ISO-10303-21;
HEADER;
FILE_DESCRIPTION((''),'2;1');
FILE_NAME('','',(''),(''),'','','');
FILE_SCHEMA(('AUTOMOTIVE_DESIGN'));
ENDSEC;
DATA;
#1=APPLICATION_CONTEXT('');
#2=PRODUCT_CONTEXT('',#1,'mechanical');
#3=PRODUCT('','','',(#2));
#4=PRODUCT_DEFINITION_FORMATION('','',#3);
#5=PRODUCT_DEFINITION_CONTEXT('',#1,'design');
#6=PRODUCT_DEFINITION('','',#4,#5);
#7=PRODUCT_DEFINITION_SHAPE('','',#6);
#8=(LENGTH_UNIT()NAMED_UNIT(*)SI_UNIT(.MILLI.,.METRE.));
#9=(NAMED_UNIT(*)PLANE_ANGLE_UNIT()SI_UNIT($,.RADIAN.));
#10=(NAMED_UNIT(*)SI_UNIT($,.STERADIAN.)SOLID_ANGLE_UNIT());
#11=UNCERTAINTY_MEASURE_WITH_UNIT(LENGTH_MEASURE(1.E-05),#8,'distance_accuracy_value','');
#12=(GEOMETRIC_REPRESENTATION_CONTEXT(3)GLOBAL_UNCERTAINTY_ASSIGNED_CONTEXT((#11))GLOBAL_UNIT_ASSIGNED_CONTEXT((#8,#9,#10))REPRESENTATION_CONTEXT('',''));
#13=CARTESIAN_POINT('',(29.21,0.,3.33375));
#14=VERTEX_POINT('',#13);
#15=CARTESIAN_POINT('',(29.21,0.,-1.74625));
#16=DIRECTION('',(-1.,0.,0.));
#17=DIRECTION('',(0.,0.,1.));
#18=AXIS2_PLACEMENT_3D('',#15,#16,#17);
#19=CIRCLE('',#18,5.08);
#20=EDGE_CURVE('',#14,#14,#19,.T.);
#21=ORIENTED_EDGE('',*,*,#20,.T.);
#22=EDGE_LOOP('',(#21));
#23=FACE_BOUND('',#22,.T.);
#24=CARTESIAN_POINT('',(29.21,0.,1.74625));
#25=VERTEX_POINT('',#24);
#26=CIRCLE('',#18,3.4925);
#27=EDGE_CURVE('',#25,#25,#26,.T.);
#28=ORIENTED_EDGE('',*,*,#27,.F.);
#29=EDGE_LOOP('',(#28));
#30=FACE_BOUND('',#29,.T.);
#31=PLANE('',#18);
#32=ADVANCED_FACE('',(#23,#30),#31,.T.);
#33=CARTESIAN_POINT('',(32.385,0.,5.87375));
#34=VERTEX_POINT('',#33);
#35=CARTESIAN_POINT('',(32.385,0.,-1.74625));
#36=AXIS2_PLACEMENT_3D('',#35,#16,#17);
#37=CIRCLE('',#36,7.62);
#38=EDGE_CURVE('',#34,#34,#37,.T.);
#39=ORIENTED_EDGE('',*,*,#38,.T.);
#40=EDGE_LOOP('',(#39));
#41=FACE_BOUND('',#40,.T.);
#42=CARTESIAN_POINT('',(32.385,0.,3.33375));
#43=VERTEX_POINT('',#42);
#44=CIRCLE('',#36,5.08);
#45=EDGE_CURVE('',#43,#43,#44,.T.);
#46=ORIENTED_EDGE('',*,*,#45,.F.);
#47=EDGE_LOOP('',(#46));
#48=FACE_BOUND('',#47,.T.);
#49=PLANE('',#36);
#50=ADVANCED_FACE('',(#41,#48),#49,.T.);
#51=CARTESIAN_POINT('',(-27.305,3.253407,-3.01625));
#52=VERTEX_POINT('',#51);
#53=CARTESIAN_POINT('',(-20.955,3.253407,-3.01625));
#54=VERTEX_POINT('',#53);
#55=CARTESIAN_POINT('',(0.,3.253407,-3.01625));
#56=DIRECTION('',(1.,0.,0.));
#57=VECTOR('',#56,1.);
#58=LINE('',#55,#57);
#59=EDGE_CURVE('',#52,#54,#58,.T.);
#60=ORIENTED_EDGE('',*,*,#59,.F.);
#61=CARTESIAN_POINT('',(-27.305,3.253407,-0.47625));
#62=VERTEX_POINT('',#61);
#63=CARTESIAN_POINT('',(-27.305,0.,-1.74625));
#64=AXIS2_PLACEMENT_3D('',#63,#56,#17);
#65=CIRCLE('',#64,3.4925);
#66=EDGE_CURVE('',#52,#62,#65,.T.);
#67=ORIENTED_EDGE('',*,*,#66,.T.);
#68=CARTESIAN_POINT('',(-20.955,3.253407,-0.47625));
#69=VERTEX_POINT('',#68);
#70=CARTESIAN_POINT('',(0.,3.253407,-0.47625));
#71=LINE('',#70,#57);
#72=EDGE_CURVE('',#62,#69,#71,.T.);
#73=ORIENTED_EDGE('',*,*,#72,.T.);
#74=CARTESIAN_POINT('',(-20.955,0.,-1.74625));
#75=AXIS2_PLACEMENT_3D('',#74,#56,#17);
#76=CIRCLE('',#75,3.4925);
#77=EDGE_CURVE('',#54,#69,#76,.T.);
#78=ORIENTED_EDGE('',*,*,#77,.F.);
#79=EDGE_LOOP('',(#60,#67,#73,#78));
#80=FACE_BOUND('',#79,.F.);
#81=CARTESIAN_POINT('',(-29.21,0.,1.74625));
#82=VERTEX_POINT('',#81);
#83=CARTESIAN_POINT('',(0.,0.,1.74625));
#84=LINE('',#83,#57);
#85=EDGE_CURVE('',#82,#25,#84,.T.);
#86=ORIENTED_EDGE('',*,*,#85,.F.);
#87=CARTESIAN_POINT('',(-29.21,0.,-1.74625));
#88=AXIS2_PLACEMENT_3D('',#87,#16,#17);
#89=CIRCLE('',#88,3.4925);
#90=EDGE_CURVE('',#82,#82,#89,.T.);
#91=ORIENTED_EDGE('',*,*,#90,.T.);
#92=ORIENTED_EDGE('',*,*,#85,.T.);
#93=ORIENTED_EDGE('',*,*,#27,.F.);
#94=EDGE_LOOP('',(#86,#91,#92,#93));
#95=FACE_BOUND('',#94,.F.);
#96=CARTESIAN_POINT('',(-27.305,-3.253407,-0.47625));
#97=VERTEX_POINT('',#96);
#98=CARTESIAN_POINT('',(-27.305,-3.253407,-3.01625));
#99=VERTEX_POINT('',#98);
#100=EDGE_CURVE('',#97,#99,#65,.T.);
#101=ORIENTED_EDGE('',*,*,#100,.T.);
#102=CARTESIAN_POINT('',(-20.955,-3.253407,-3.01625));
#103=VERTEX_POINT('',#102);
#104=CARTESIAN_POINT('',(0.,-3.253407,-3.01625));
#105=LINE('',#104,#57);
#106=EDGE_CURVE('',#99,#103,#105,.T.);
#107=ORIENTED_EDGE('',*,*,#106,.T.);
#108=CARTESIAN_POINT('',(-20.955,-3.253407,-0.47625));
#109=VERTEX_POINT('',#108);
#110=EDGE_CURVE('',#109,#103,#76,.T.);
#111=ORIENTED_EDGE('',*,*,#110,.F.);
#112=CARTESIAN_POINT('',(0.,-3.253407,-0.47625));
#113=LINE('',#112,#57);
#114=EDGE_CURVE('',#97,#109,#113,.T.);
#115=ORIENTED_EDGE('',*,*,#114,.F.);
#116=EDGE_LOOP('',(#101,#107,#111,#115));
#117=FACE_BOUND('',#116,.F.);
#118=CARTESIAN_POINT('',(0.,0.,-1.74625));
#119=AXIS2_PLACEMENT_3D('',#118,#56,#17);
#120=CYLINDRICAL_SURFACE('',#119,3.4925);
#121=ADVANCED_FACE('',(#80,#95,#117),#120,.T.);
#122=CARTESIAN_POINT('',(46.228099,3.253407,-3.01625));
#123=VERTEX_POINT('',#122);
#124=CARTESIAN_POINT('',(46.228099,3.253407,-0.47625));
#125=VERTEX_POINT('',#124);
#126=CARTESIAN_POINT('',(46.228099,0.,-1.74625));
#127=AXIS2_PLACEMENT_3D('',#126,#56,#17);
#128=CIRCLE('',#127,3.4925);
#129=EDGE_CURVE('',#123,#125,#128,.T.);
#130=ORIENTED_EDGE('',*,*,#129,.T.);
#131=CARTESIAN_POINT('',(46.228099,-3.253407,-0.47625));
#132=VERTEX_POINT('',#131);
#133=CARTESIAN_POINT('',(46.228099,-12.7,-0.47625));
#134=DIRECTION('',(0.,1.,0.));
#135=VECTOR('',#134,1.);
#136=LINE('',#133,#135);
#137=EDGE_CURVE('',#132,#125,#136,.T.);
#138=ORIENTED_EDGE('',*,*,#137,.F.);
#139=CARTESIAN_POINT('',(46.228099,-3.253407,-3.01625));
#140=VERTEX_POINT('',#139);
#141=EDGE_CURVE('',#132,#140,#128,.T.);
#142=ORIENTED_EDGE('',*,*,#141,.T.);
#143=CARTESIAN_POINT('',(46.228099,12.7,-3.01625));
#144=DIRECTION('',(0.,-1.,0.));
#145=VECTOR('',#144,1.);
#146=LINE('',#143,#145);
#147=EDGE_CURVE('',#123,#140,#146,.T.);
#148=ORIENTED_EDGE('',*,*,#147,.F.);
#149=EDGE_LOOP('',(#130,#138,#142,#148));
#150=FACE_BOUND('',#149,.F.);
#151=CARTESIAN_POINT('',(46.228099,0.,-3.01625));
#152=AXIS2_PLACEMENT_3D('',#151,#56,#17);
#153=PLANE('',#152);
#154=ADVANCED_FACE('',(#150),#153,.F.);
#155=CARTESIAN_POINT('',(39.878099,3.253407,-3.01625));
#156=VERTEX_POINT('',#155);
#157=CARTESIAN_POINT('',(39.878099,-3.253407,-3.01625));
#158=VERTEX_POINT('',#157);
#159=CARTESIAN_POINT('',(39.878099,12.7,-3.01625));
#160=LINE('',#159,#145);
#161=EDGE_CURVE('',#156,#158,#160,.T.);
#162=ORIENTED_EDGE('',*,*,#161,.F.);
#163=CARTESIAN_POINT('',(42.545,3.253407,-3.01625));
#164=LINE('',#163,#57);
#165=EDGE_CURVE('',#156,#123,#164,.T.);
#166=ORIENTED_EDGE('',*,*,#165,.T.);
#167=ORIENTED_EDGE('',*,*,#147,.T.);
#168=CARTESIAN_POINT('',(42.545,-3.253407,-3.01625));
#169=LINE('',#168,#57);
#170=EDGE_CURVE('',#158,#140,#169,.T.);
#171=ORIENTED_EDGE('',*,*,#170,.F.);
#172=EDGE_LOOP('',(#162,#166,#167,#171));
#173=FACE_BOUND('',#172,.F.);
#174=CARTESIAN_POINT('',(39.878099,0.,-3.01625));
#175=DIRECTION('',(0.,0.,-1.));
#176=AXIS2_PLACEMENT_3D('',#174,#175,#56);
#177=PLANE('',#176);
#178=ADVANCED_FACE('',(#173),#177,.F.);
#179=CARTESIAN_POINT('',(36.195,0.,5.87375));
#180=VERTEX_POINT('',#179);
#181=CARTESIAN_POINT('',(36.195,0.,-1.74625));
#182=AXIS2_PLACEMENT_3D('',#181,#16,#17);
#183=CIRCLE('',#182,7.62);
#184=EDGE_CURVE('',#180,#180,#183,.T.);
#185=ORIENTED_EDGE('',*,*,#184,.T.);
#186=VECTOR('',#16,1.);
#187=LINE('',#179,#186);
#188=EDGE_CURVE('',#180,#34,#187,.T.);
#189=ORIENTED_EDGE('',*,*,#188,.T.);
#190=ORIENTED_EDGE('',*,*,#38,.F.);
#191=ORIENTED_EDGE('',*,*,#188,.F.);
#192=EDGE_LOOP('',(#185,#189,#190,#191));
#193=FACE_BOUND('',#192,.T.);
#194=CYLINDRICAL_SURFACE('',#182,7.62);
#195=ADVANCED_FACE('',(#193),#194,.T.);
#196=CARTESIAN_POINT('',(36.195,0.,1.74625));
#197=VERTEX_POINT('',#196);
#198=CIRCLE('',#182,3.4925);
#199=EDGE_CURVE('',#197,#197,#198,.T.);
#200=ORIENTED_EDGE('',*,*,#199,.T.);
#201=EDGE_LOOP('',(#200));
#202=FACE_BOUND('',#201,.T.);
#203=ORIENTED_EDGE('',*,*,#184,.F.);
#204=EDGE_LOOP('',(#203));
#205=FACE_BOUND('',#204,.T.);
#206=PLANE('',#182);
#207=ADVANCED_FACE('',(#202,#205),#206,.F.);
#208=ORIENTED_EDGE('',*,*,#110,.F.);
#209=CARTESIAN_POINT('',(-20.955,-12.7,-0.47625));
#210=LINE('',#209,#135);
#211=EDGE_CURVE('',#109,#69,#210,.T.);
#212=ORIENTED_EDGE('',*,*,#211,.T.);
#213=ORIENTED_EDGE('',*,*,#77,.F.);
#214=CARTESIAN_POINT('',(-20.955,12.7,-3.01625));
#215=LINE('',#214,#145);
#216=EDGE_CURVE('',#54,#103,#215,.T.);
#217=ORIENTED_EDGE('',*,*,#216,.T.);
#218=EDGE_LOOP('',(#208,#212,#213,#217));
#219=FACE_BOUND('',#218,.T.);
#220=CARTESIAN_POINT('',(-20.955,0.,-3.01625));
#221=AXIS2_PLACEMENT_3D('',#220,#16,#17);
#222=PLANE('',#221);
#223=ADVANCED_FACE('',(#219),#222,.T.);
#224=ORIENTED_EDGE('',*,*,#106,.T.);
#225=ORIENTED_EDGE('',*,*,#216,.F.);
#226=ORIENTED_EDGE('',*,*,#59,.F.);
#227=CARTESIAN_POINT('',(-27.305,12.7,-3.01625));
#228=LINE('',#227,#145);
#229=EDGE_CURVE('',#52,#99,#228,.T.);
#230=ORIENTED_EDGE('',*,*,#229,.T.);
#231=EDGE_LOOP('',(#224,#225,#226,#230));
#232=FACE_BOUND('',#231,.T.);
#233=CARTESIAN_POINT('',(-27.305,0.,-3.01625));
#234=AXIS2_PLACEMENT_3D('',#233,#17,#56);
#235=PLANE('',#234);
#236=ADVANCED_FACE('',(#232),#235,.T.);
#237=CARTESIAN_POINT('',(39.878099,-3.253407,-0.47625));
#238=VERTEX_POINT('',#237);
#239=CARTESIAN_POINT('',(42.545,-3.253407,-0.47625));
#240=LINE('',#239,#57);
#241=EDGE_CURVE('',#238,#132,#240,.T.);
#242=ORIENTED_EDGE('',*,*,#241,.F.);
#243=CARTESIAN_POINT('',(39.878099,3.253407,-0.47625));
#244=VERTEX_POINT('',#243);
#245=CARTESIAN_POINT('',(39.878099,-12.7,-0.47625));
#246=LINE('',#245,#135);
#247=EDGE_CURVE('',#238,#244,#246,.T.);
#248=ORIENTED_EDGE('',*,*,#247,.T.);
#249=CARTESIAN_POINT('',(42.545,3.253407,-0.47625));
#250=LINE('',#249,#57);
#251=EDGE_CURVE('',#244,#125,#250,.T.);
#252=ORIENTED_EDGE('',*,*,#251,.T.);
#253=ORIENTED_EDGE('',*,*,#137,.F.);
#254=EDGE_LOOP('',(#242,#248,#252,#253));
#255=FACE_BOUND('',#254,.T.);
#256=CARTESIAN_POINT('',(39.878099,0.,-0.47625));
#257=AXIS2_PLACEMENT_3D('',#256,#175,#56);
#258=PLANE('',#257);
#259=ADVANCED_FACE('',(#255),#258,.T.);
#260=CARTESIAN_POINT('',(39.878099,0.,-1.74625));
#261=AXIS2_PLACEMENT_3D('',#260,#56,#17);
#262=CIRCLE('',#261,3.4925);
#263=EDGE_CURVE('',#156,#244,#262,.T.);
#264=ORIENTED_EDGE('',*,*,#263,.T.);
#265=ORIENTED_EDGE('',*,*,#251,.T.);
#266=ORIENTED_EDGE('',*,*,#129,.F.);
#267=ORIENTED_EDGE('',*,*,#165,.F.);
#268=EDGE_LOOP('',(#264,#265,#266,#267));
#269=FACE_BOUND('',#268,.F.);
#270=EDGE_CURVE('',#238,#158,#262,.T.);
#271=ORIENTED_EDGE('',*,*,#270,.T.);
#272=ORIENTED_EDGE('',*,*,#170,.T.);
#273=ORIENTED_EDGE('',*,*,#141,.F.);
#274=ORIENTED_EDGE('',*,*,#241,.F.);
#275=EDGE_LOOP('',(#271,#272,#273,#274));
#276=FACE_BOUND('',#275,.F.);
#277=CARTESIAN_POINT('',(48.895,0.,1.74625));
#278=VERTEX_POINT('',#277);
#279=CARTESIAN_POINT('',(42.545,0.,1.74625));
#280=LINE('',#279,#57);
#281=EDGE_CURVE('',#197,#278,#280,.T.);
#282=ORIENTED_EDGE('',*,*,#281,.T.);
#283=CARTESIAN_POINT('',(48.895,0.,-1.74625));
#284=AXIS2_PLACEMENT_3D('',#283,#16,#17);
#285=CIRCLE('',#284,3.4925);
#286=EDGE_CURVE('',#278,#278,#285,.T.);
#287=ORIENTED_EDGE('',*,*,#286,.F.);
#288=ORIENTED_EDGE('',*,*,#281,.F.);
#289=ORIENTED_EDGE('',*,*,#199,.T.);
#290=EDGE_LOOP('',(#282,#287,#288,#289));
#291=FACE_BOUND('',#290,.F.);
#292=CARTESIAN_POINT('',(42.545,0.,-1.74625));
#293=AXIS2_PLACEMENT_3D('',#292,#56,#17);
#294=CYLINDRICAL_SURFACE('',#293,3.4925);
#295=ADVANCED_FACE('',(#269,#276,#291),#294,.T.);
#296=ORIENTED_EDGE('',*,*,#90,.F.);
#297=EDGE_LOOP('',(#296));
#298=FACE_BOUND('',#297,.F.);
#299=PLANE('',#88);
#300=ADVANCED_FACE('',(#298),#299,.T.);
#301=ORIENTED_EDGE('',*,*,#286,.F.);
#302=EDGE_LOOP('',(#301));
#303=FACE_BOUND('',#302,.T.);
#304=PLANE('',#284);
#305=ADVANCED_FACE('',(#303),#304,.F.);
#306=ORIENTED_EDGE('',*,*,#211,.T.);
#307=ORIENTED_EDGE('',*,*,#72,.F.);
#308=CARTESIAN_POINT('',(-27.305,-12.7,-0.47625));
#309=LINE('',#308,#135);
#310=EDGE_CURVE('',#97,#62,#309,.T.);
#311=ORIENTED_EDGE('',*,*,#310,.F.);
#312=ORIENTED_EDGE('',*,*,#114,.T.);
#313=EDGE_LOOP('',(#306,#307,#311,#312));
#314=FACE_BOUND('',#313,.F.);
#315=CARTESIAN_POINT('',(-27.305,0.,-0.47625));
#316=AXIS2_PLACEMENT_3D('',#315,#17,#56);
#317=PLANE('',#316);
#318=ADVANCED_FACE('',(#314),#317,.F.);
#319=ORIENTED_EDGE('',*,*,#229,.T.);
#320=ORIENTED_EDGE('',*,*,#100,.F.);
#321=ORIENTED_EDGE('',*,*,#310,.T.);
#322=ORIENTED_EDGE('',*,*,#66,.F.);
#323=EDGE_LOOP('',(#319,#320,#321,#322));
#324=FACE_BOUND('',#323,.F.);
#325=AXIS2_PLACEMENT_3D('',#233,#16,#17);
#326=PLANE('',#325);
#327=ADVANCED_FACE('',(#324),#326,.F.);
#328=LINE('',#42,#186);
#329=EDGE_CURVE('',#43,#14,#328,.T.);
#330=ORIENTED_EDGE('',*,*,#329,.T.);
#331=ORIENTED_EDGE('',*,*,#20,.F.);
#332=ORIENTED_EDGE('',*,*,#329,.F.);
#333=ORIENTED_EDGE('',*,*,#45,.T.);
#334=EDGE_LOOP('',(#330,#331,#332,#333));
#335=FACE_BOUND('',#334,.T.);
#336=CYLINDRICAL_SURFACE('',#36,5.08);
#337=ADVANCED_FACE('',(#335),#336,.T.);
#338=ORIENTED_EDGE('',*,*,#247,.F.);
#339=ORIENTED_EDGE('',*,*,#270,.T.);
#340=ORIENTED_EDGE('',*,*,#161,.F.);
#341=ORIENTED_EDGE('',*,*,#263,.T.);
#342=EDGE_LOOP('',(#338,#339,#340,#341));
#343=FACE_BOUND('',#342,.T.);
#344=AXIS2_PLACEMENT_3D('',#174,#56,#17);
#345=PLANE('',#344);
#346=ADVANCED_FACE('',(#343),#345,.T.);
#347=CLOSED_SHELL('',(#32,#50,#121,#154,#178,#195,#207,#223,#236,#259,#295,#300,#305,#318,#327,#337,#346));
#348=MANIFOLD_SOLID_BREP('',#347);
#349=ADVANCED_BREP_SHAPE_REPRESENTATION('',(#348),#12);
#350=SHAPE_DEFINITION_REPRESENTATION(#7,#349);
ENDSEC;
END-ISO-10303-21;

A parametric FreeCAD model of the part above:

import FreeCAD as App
import Part
import Sketcher
from FreeCAD import Vector
Q = App.Units.Quantity


def add_polygon(sketch, points):
    """Adds a closed chain of lines whose ends are joined by coincident constraints."""
    first, n = sketch.GeometryCount, len(points)
    for a, b in zip(points, points[1:] + points[:1]):
        sketch.addGeometry(Part.LineSegment(App.Vector(*a, 0), App.Vector(*b, 0)), False)
    for i in range(n):
        sketch.addConstraint(Sketcher.Constraint("Coincident", first + i, 2, first + (i + 1) % n, 1))

doc = App.newDocument("Part")
params = doc.addObject("Spreadsheet::Sheet", "Params")
for row, (alias, value) in enumerate([
    ("sketch1_width", "0.5 in"),
    ("sketch1_width2", "2.3 in"),
    ("sketch1_height", "0.1 in"),
    ("sketch1_width3", "0.15 in"),
    ("sketch1_width4", "3.075 in"),
    ("revolution_angle", "360 deg"),
    ("sketch2_height", "0.1 in"),
    ("sketch2_width", "0.25 in"),
    ("pocket1_length", "1 in"),
], start=1):
    params.set(f"A{row}", alias)
    params.set(f"B{row}", "=" + value)
    params.setAlias(f"B{row}", alias)

body = doc.addObject("PartDesign::Body", "Body")

# Sketch on XZ plane
sketch1 = body.newObject("Sketcher::SketchObject", "Sketch")
sketch1.AttachmentSupport = (doc.getObject("XZ_Plane"), [""])
sketch1.MapMode = "FlatFace"
add_polygon(sketch1, [(-29.2, 1.7), (-29.2, -1.7), (48.9, -1.7), (48.9, 1.7), (36.2, 1.7), (36.2, 5.9), (32.4, 5.9), (32.4, 3.3), (29.2, 3.3), (29.2, 1.7)])  # lines 0-9
sketch1.addGeometry(Part.LineSegment(Vector(48.9, -1.7, 0), Vector(-29.2, -1.7, 0)), True)  # axis
sketch1.addConstraint([
    Sketcher.Constraint("Vertical", 0),
    Sketcher.Constraint("Horizontal", 1),
    Sketcher.Constraint("Vertical", 2),
    Sketcher.Constraint("Horizontal", 3),
    Sketcher.Constraint("Vertical", 4),
    Sketcher.Constraint("Horizontal", 5),
    Sketcher.Constraint("Vertical", 6),
    Sketcher.Constraint("Horizontal", 7),
    Sketcher.Constraint("Vertical", 8),
    Sketcher.Constraint("Horizontal", 9),
    Sketcher.Constraint("Horizontal", 10),
    Sketcher.Constraint("Coincident", 10, 1, 1, 2),
    Sketcher.Constraint("Symmetric", 0, 2, 8, 2, -1, 1),
    Sketcher.Constraint("Horizontal", 3, 2, 8, 2),
    Sketcher.Constraint("Vertical", 9, 2, 10, 2),
    Sketcher.Constraint("DistanceX", 3, 2, 3, 1, Q("0.5 in")),
    Sketcher.Constraint("DistanceX", 9, 2, 9, 1, Q("2.3 in")),
    Sketcher.Constraint("DistanceY", 6, 2, 6, 1, Q("0.1 in")),
    Sketcher.Constraint("DistanceX", 5, 2, 5, 1, Q("0.15 in")),
    Sketcher.Constraint("DistanceY", 1, 2, 4, 2, Q("0.3 in")),
    Sketcher.Constraint("DistanceX", 1, 1, 1, 2, Q("3.075 in")),
    Sketcher.Constraint("DistanceY", 8, 2, 8, 1, Q("0.0625 in")),
])
sketch1.setExpression("Constraints[25]", "Params.sketch1_width")
sketch1.setExpression("Constraints[26]", "Params.sketch1_width2")
sketch1.setExpression("Constraints[27]", "Params.sketch1_height")
sketch1.setExpression("Constraints[28]", "Params.sketch1_width3")
sketch1.setExpression("Constraints[30]", "Params.sketch1_width4")
revolution = body.newObject("PartDesign::Revolution", "Revolution")
revolution.Profile = sketch1
revolution.ReferenceAxis = (sketch1, ["Axis0"])
revolution.setExpression("Angle", "Params.revolution_angle")

# Sketch on XZ plane
sketch2 = body.newObject("Sketcher::SketchObject", "Sketch001")
sketch2.AttachmentSupport = (doc.getObject("XZ_Plane"), [""])
sketch2.MapMode = "FlatFace"
add_polygon(sketch2, [(-27.3, -0.5), (-27.3, -3), (-21, -3), (-21, -0.5)])  # lines 0-3
add_polygon(sketch2, [(39.9, -0.5), (39.9, -3), (46.2, -3), (46.2, -0.5)])  # lines 4-7
sketch2.addConstraint([
    Sketcher.Constraint("Vertical", 0),
    Sketcher.Constraint("Horizontal", 1),
    Sketcher.Constraint("Vertical", 2),
    Sketcher.Constraint("Horizontal", 3),
    Sketcher.Constraint("Vertical", 4),
    Sketcher.Constraint("Horizontal", 5),
    Sketcher.Constraint("Vertical", 6),
    Sketcher.Constraint("Horizontal", 7),
    Sketcher.Constraint("Horizontal", 1, 2, 4, 2),
    Sketcher.Constraint("Horizontal", 3, 2, 6, 2),
    Sketcher.Constraint("Equal", 3, 5),
    Sketcher.Constraint("DistanceY", 0, 2, 0, 1, Q("0.1 in")),
    Sketcher.Constraint("DistanceX", 1, 1, 1, 2, Q("0.25 in")),
    Sketcher.Constraint("DistanceX", 0, 2, -1, 1, Q("1.075 in")),
    Sketcher.Constraint("DistanceX", -1, 1, 4, 2, 39.878099),
    Sketcher.Constraint("DistanceY", 0, 2, -1, 1, 3.01625),
])
sketch2.setExpression("Constraints[19]", "Params.sketch2_height")
sketch2.setExpression("Constraints[20]", "Params.sketch2_width")
pocket1 = body.newObject("PartDesign::Pocket", "Pocket")
pocket1.Profile = sketch2
pocket1.setExpression("Length", "Params.pocket1_length")
pocket1.Midplane = True

doc.recompute()
